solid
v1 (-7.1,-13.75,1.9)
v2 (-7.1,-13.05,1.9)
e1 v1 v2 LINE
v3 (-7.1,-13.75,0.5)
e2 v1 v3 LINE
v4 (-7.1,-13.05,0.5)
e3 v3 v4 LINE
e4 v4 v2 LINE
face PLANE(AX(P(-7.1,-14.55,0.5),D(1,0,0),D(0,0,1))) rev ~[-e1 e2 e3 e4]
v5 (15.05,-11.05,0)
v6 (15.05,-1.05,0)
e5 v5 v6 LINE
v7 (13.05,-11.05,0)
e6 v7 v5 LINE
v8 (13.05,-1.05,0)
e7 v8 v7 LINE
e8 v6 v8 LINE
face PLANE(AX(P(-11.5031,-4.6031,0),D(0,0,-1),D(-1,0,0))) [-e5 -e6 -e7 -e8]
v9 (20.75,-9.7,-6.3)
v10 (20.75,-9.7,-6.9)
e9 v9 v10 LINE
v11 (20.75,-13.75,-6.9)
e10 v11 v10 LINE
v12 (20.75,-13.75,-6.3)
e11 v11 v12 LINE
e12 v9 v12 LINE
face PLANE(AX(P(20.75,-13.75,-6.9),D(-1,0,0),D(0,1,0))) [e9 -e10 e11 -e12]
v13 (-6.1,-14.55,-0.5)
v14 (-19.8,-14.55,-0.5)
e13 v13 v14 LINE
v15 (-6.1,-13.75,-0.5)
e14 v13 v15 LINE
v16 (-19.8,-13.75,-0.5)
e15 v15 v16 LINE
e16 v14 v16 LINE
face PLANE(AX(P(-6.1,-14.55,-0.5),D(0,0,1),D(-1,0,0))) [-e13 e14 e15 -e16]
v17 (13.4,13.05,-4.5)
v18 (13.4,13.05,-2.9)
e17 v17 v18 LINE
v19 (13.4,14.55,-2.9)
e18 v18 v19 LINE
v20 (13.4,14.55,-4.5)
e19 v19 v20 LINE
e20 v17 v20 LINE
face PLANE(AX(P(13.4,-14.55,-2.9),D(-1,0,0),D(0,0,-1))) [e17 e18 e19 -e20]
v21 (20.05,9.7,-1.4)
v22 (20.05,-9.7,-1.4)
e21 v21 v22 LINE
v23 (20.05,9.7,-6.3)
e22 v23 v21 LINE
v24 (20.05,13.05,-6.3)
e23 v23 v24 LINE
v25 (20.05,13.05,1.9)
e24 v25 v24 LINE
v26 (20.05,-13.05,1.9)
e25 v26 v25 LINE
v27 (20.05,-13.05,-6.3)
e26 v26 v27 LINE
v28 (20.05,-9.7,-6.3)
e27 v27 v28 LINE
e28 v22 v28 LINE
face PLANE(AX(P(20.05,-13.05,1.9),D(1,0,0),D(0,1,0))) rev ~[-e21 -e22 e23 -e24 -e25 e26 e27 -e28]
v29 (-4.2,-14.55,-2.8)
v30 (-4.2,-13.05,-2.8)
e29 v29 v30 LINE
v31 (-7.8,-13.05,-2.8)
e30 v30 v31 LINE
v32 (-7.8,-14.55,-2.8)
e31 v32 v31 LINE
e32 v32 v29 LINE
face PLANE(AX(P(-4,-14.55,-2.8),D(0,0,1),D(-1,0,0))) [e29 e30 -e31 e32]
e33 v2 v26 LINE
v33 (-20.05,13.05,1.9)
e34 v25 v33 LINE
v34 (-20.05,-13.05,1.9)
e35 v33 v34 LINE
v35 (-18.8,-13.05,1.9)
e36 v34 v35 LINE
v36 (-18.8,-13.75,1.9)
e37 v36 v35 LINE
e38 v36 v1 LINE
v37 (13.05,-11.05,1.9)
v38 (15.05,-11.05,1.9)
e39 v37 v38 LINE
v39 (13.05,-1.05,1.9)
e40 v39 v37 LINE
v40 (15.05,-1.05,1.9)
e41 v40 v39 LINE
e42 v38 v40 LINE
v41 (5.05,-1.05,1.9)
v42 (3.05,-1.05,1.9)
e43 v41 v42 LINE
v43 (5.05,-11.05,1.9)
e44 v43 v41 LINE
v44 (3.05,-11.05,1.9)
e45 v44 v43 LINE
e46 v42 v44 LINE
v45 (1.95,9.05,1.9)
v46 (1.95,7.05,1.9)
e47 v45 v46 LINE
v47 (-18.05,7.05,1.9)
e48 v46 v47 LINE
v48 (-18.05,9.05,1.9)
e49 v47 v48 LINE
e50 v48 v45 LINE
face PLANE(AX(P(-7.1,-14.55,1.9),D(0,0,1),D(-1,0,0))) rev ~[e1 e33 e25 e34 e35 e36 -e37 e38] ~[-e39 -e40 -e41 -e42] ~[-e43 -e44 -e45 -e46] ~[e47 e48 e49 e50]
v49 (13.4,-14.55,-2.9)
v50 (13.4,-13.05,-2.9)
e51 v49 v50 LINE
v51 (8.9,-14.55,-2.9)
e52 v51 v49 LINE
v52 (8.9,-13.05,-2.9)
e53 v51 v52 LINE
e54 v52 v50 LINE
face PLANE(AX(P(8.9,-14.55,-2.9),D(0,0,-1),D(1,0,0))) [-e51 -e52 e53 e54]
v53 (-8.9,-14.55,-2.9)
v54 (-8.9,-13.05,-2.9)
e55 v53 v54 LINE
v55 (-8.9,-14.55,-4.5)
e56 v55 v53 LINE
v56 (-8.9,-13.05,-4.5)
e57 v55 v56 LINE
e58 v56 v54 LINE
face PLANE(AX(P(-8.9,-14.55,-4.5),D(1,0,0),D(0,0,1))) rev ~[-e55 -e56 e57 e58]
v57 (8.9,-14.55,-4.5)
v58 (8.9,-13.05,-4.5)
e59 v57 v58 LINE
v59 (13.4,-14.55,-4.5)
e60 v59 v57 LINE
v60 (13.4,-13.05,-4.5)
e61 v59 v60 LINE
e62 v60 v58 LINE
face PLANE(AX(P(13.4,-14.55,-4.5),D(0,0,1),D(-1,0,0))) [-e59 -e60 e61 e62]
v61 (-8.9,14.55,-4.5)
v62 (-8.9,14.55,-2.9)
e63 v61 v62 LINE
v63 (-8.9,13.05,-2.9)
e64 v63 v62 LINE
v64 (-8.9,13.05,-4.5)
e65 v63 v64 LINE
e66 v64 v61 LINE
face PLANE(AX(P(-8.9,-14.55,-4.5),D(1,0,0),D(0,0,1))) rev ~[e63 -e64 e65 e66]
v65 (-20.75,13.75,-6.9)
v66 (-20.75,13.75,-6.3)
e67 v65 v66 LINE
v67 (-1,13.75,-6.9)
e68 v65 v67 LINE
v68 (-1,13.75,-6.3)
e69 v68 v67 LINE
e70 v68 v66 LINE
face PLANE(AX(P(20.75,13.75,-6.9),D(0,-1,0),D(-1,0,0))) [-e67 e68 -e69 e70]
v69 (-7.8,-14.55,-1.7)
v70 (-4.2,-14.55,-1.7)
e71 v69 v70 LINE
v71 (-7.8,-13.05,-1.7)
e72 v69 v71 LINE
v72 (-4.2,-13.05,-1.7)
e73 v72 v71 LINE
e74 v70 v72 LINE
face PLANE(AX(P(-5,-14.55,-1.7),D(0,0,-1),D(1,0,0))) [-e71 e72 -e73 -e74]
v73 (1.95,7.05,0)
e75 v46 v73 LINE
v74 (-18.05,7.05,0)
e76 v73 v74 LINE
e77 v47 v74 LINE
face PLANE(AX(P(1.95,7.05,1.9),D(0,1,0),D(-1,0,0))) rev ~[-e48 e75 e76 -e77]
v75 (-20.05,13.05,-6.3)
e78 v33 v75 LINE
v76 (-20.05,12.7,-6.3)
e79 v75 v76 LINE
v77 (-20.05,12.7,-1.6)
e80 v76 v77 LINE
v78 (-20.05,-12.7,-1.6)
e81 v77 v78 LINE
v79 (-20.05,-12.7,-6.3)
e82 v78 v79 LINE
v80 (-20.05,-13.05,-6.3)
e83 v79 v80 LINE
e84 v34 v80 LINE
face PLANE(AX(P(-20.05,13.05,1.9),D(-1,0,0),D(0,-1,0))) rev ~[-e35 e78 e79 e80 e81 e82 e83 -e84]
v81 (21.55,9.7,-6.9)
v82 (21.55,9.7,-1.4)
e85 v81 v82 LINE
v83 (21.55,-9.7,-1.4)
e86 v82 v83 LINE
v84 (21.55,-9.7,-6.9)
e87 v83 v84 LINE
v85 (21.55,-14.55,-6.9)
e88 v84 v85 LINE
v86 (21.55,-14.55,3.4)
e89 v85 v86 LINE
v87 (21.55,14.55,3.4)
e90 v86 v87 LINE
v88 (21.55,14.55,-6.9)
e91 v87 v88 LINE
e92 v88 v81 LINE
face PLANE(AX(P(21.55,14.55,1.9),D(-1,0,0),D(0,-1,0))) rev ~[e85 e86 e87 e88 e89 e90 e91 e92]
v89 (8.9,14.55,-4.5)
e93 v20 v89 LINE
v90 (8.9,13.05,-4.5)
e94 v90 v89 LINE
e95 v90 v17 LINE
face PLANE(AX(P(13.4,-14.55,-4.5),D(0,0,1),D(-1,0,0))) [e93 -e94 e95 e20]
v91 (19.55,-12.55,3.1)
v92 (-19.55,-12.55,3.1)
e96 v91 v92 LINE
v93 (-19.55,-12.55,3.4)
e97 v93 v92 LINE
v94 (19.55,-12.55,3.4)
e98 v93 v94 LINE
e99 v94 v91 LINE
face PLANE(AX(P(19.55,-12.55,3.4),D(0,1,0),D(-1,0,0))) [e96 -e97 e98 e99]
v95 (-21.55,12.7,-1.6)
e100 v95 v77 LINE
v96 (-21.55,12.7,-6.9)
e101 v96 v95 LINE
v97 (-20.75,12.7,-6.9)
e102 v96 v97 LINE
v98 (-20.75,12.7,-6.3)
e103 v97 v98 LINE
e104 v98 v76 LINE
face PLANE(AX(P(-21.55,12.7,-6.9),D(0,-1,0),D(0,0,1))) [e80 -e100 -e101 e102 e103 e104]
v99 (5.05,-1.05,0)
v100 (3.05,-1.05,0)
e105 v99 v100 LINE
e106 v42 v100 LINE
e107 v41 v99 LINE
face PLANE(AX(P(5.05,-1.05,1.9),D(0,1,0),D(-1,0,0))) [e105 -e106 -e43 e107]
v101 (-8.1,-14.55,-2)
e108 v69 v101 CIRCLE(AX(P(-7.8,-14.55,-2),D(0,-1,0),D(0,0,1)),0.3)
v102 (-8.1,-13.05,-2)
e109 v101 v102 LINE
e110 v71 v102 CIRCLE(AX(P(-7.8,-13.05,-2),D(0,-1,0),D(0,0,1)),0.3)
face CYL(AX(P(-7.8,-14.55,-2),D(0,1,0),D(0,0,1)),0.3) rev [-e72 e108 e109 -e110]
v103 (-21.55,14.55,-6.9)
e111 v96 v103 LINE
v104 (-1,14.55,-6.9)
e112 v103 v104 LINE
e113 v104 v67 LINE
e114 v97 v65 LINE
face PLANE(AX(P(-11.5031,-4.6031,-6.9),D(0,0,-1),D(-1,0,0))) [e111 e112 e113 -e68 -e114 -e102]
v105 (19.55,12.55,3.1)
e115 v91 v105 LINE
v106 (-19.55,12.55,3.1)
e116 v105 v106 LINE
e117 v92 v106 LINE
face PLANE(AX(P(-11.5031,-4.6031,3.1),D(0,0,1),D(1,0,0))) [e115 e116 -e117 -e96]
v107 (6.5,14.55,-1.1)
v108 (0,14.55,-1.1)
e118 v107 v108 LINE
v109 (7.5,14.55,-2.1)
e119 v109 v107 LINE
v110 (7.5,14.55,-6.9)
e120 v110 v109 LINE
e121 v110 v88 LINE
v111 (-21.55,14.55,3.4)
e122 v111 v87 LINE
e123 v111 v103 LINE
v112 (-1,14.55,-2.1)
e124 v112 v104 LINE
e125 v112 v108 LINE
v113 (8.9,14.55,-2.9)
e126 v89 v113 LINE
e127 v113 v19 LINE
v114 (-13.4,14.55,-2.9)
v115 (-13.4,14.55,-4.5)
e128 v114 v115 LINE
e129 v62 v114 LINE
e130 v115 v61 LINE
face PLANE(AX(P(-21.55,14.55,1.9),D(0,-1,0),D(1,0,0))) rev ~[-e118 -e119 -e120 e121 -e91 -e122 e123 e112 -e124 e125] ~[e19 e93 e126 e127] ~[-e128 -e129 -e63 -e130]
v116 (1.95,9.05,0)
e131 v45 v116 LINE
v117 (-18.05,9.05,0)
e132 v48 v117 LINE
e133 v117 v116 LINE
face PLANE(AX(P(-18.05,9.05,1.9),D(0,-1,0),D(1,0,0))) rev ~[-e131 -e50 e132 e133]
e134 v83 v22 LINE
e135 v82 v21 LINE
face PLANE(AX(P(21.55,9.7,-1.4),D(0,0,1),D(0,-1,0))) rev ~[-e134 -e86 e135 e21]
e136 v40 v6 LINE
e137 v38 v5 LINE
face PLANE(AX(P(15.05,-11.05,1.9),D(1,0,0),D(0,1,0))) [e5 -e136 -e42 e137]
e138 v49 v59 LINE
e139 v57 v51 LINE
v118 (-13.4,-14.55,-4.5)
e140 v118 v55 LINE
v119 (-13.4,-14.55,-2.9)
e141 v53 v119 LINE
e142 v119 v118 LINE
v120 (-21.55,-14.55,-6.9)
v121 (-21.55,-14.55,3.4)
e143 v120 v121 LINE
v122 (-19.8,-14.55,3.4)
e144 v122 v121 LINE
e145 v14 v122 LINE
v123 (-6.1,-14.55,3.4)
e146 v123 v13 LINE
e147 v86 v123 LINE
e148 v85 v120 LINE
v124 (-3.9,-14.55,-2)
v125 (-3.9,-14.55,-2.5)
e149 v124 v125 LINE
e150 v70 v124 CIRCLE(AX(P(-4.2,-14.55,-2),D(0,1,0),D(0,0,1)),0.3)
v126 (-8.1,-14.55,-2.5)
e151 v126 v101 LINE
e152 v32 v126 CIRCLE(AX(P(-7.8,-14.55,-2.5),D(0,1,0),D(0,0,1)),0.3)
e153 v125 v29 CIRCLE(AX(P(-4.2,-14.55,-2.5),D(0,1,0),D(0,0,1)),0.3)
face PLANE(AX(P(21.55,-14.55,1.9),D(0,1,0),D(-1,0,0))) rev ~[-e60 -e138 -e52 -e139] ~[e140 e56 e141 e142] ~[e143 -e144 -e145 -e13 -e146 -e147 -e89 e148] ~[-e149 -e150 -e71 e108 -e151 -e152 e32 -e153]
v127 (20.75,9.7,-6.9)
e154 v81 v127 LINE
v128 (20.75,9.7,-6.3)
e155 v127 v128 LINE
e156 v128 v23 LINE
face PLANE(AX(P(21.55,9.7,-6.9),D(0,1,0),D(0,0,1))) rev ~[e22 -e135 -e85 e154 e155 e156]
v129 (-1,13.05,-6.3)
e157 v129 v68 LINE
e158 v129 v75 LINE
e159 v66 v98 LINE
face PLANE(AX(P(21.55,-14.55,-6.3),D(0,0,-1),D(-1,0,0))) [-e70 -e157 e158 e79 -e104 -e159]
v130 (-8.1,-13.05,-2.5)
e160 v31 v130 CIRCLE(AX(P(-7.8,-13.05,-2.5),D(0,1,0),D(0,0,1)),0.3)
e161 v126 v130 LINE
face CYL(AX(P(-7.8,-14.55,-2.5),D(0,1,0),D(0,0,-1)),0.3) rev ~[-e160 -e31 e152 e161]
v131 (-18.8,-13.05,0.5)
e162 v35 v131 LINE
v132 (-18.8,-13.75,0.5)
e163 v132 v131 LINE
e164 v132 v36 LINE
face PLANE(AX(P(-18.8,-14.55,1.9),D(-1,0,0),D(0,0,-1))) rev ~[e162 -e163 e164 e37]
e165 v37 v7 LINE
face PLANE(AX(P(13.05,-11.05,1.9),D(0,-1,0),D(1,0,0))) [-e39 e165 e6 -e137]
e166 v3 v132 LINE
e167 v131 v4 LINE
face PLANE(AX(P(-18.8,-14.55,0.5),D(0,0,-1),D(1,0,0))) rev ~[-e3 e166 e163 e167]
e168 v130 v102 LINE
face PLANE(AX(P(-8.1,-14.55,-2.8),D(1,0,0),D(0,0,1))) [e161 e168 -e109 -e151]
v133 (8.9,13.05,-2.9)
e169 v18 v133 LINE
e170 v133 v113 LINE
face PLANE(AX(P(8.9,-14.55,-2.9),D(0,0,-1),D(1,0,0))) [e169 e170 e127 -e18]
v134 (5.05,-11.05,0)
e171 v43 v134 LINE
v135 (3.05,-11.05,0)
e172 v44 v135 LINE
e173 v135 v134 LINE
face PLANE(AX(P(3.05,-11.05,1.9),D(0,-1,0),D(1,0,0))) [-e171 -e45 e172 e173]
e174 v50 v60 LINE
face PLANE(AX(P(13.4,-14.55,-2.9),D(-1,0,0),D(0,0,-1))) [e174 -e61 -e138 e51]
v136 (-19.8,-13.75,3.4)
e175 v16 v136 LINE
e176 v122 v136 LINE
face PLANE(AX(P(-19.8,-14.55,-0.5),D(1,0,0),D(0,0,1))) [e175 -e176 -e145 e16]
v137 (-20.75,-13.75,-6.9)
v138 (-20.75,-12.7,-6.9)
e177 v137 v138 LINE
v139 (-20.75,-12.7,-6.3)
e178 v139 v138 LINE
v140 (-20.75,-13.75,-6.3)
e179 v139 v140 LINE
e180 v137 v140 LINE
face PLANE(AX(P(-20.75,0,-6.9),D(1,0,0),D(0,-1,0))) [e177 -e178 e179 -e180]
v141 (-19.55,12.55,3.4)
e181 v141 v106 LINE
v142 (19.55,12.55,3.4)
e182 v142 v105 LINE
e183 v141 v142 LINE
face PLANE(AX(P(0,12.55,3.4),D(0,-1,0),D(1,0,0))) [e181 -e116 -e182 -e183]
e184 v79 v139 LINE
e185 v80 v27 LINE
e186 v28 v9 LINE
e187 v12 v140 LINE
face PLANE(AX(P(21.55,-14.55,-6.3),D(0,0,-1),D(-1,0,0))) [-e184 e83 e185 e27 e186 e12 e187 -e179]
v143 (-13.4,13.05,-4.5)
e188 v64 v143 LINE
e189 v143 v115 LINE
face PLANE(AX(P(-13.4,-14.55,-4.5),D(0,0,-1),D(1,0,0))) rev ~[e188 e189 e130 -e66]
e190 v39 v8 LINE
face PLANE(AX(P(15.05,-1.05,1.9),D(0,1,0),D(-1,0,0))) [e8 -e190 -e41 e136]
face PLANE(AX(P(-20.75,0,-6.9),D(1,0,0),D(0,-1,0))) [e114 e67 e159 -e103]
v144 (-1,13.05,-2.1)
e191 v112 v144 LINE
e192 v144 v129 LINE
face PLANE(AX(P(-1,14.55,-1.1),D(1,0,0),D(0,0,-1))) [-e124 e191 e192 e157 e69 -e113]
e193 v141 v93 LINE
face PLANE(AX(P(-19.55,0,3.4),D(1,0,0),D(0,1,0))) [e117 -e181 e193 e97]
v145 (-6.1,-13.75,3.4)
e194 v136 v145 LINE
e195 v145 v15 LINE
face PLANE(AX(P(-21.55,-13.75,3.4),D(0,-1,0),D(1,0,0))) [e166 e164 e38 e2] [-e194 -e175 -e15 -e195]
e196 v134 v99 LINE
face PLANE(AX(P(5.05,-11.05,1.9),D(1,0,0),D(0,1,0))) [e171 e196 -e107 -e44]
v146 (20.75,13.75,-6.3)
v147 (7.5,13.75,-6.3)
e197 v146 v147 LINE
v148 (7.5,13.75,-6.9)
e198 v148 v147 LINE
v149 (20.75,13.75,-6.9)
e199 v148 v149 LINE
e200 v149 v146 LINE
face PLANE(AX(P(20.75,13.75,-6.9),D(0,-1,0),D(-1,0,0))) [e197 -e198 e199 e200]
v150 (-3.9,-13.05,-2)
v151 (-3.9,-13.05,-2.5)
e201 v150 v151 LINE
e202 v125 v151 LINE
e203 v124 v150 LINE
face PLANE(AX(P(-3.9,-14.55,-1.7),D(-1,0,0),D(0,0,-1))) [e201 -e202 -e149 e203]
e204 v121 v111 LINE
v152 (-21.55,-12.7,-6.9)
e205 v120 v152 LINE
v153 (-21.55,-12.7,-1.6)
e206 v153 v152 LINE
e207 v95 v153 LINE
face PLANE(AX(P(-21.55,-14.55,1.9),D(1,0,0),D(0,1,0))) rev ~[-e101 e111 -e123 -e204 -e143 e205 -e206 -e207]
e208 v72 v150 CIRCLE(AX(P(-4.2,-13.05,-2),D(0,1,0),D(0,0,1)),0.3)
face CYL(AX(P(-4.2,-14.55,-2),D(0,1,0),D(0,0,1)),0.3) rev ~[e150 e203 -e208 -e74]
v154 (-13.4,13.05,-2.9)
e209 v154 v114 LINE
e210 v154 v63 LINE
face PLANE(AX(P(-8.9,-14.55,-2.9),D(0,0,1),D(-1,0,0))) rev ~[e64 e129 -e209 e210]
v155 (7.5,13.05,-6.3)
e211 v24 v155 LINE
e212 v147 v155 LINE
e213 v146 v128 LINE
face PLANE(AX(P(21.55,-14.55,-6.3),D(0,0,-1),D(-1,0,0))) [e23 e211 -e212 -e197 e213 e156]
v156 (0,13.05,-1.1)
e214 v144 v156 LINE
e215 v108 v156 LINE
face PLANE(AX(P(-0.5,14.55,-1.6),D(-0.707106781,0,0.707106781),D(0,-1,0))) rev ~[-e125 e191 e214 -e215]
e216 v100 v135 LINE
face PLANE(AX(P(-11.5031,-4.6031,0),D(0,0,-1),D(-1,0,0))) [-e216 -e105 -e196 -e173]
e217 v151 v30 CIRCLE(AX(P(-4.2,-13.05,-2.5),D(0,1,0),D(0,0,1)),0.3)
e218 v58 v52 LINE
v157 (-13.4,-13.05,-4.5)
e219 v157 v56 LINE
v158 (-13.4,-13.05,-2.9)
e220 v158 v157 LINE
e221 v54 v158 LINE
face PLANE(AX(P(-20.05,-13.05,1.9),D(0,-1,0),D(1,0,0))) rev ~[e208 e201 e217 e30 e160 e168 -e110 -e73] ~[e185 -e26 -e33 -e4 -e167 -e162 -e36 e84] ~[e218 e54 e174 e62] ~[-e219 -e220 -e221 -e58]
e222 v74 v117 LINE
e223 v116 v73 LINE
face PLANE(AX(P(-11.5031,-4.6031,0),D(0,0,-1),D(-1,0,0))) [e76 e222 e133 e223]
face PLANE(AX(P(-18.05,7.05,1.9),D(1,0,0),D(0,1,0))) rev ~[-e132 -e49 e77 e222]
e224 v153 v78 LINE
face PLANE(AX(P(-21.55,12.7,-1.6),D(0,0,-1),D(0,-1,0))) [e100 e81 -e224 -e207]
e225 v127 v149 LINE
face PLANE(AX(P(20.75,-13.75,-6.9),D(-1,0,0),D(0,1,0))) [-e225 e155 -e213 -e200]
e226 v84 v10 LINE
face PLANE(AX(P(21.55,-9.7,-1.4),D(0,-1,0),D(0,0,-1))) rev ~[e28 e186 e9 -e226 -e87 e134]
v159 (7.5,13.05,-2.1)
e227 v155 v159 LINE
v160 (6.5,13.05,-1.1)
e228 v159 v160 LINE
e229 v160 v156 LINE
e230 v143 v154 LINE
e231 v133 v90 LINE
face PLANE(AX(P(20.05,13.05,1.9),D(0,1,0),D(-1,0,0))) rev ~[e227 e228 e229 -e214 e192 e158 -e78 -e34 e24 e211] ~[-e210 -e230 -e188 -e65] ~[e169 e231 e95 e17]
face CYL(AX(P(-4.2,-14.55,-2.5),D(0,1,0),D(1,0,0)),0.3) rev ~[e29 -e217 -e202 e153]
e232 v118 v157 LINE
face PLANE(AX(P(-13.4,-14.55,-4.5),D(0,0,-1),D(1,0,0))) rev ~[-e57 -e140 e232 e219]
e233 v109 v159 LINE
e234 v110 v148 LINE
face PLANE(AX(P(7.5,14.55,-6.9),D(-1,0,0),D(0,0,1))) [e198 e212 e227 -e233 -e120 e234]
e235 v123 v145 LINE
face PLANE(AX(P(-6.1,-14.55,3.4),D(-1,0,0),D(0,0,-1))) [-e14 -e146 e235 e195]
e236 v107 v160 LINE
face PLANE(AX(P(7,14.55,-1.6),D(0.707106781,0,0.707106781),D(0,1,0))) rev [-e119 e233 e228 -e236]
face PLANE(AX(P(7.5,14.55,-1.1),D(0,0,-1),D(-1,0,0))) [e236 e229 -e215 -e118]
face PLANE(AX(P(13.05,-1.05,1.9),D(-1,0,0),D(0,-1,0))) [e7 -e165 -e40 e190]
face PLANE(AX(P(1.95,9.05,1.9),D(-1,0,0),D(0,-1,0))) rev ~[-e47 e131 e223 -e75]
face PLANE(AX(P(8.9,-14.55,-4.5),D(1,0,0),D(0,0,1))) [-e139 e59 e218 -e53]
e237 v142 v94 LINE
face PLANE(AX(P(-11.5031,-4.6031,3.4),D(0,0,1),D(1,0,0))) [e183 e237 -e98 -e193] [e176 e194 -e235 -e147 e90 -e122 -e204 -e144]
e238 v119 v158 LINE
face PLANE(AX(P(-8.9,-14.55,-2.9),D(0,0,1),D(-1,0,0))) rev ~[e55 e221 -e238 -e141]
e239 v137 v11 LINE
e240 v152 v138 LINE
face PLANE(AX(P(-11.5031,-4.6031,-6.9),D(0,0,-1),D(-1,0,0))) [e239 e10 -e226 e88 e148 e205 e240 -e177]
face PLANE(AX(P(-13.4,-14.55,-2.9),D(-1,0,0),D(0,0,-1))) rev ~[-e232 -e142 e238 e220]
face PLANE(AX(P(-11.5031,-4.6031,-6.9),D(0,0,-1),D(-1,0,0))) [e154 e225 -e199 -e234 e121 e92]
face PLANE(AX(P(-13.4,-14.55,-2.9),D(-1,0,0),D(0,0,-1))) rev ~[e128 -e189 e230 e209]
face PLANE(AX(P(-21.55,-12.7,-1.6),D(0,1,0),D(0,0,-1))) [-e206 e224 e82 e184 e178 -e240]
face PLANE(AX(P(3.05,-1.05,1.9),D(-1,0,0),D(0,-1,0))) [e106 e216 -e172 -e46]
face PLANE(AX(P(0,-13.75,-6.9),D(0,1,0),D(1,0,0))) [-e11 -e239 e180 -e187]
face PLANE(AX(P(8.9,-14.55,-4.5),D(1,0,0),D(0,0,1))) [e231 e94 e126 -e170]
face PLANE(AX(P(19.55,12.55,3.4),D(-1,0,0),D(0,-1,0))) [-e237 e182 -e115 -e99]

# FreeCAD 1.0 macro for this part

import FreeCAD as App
import Part
import Sketcher

V = App.Vector


def edges_at(feature, points):
    """Names of the edges that pass closest to the given points."""
    edges = feature.Shape.Edges
    near = lambda p: min(range(len(edges)), key=lambda i: edges[i].distToShape(Part.Vertex(*p))[0])
    return sorted({f"Edge{near(p) + 1}" for p in points})


def add_polygon(sketch, points):
    """Adds a closed chain of lines whose ends are joined by coincident constraints."""
    first, n = sketch.GeometryCount, len(points)
    for a, b in zip(points, points[1:] + points[:1]):
        sketch.addGeometry(Part.LineSegment(App.Vector(*a, 0), App.Vector(*b, 0)), False)
    for i in range(n):
        sketch.addConstraint(Sketcher.Constraint("Coincident", first + i, 2, first + (i + 1) % n, 1))

doc = App.newDocument("Part")
body = doc.addObject("PartDesign::Body", "Body")

sketch1 = doc.addObject("Sketcher::SketchObject", "Sketch")
body.addObject(sketch1)
sketch1.AttachmentSupport = (doc.XY_Plane, [""])
sketch1.MapMode = "FlatFace"
sketch1.AttachmentOffset = App.Placement(V(0, 0, 1.9), App.Rotation())
add_polygon(sketch1, [(-21.55, 14.55), (-21.55, -14.55), (21.55, -14.55), (21.55, 14.55)])
sketch1.addConstraint([
    Sketcher.Constraint("Vertical", 0),
    Sketcher.Constraint("Horizontal", 1),
    Sketcher.Constraint("Vertical", 2),
    Sketcher.Constraint("Horizontal", 3),
    Sketcher.Constraint("Symmetric", 0, 2, 2, 2, -1, 1),
    Sketcher.Constraint("DistanceX", 1, 1, 1, 2, 43.1),
    Sketcher.Constraint("DistanceY", 0, 2, 0, 1, 29.1),
])
pad1 = doc.addObject("PartDesign::Pad", "Pad")
body.addObject(pad1)
pad1.Profile = sketch1
pad1.Length = 1.5

sketch2 = doc.addObject("Sketcher::SketchObject", "Sketch001")
body.addObject(sketch2)
sketch2.AttachmentSupport = (doc.XY_Plane, [""])
sketch2.MapMode = "FlatFace"
sketch2.AttachmentOffset = App.Placement(V(0, 0, 1.9), App.Rotation())
add_polygon(sketch2, [(-21.55, -14.55), (-21.55, 14.55), (21.55, 14.55), (21.55, -14.55)])
add_polygon(sketch2, [(20.05, -13.05), (20.05, 13.05), (-20.05, 13.05), (-20.05, -13.05)])
sketch2.addConstraint([
    Sketcher.Constraint("Vertical", 0),
    Sketcher.Constraint("Horizontal", 1),
    Sketcher.Constraint("Vertical", 2),
    Sketcher.Constraint("Horizontal", 3),
    Sketcher.Constraint("Vertical", 4),
    Sketcher.Constraint("Horizontal", 5),
    Sketcher.Constraint("Vertical", 6),
    Sketcher.Constraint("Horizontal", 7),
    Sketcher.Constraint("Symmetric", 0, 2, 2, 2, -1, 1),
    Sketcher.Constraint("Symmetric", 4, 2, 6, 2, -1, 1),
    Sketcher.Constraint("DistanceX", 4, 2, 1, 2, 1.5),
    Sketcher.Constraint("DistanceY", 4, 2, 1, 2, 1.5),
    Sketcher.Constraint("DistanceX", 1, 1, 1, 2, 43.1),
    Sketcher.Constraint("DistanceY", 0, 1, 0, 2, 29.1),
])
pad2 = doc.addObject("PartDesign::Pad", "Pad001")
body.addObject(pad2)
pad2.Profile = sketch2
pad2.Length = 8.8
pad2.Reversed = True

sketch3 = doc.addObject("Sketcher::SketchObject", "Sketch002")
body.addObject(sketch3)
sketch3.AttachmentSupport = (doc.XY_Plane, [""])
sketch3.MapMode = "FlatFace"
sketch3.AttachmentOffset = App.Placement(V(0, 0, 1.9), App.Rotation())
add_polygon(sketch3, [(13.05, -1.05), (15.05, -1.05), (15.05, -11.05), (13.05, -11.05)])
add_polygon(sketch3, [(3.05, -1.05), (5.05, -1.05), (5.05, -11.05), (3.05, -11.05)])
add_polygon(sketch3, [(-18.05, 7.05), (-18.05, 9.05), (1.95, 9.05), (1.95, 7.05)])
sketch3.addConstraint([
    Sketcher.Constraint("Horizontal", 0),
    Sketcher.Constraint("Vertical", 1),
    Sketcher.Constraint("Horizontal", 2),
    Sketcher.Constraint("Vertical", 3),
    Sketcher.Constraint("Horizontal", 4),
    Sketcher.Constraint("Vertical", 5),
    Sketcher.Constraint("Horizontal", 6),
    Sketcher.Constraint("Vertical", 7),
    Sketcher.Constraint("Vertical", 8),
    Sketcher.Constraint("Horizontal", 9),
    Sketcher.Constraint("Vertical", 10),
    Sketcher.Constraint("Horizontal", 11),
    Sketcher.Constraint("Horizontal", 3, 2, 4, 2),
    Sketcher.Constraint("Horizontal", 2, 2, 5, 2),
    Sketcher.Constraint("Equal", 2, 4),
    Sketcher.Constraint("Equal", 6, 8),
    Sketcher.Constraint("DistanceX", 0, 1, 0, 2, 2.0),
    Sketcher.Constraint("DistanceX", 9, 1, 9, 2, 20.0),
    Sketcher.Constraint("DistanceY", 1, 2, 1, 1, 10.0),
    Sketcher.Constraint("DistanceX", 4, 2, 3, 2, 8.0),
    Sketcher.Constraint("DistanceX", 8, 2, 7, 2, 21.1),
    Sketcher.Constraint("DistanceY", 7, 2, 8, 2, 10.1),
    Sketcher.Constraint("DistanceX", -1, 1, 0, 2, 15.05),
    Sketcher.Constraint("DistanceY", 0, 2, -1, 1, 1.05),
])
pad3 = doc.addObject("PartDesign::Pad", "Pad002")
body.addObject(pad3)
pad3.Profile = sketch3
pad3.Length = 1.9
pad3.Reversed = True

sketch4 = doc.addObject("Sketcher::SketchObject", "Sketch003")
body.addObject(sketch4)
sketch4.AttachmentSupport = (doc.XZ_Plane, [""])
sketch4.MapMode = "FlatFace"
sketch4.AttachmentOffset = App.Placement(V(0, 0, 14.55), App.Rotation())
add_polygon(sketch4, [(-7.1, 0.5), (-7.1, 1.9), (-18.8, 1.9), (-18.8, 0.5)])
sketch4.addConstraint([
    Sketcher.Constraint("Vertical", 0),
    Sketcher.Constraint("Horizontal", 1),
    Sketcher.Constraint("Vertical", 2),
    Sketcher.Constraint("Horizontal", 3),
    Sketcher.Constraint("DistanceX", 1, 2, 1, 1, 11.7),
    Sketcher.Constraint("DistanceY", 0, 1, 0, 2, 1.4),
    Sketcher.Constraint("DistanceX", 0, 2, -1, 1, 7.1),
    Sketcher.Constraint("DistanceY", -1, 1, 0, 2, 1.9),
])
pocket1 = doc.addObject("PartDesign::Pocket", "Pocket")
body.addObject(pocket1)
pocket1.Profile = sketch4
pocket1.Length = 1.5

sketch5 = doc.addObject("Sketcher::SketchObject", "Sketch004")
body.addObject(sketch5)
sketch5.AttachmentSupport = (doc.XZ_Plane, [""])
sketch5.MapMode = "FlatFace"
sketch5.AttachmentOffset = App.Placement(V(0, 0, 14.55), App.Rotation())
add_polygon(sketch5, [(-6.1, 3.4), (-19.8, 3.4), (-19.8, -0.5), (-6.1, -0.5)])
sketch5.addConstraint([
    Sketcher.Constraint("Horizontal", 0),
    Sketcher.Constraint("Vertical", 1),
    Sketcher.Constraint("Horizontal", 2),
    Sketcher.Constraint("Vertical", 3),
    Sketcher.Constraint("DistanceX", 0, 2, 0, 1, 13.7),
    Sketcher.Constraint("DistanceY", 1, 2, 1, 1, 3.9),
    Sketcher.Constraint("DistanceX", 0, 2, -1, 1, 19.8),
    Sketcher.Constraint("DistanceY", -1, 1, 0, 2, 3.4),
])
pocket2 = doc.addObject("PartDesign::Pocket", "Pocket001")
body.addObject(pocket2)
pocket2.Profile = sketch5
pocket2.Length = 0.8

sketch6 = doc.addObject("Sketcher::SketchObject", "Sketch005")
body.addObject(sketch6)
sketch6.AttachmentSupport = (doc.XZ_Plane, [""])
sketch6.MapMode = "FlatFace"
sketch6.AttachmentOffset = App.Placement(V(0, 0, 14.55), App.Rotation())
add_polygon(sketch6, [(-8.1, -1.7), (-8.1, -2.8), (-3.9, -2.8), (-3.9, -1.7)])
sketch6.addConstraint([
    Sketcher.Constraint("Vertical", 0),
    Sketcher.Constraint("Horizontal", 1),
    Sketcher.Constraint("Vertical", 2),
    Sketcher.Constraint("Horizontal", 3),
    Sketcher.Constraint("DistanceX", 1, 1, 1, 2, 4.2),
    Sketcher.Constraint("DistanceY", 0, 2, 0, 1, 1.1),
    Sketcher.Constraint("DistanceX", 0, 2, -1, 1, 8.1),
    Sketcher.Constraint("DistanceY", 0, 2, -1, 1, 2.8),
])
pocket3 = doc.addObject("PartDesign::Pocket", "Pocket002")
body.addObject(pocket3)
pocket3.Profile = sketch6
pocket3.Length = 1.5
doc.recompute()

fillet = doc.addObject("PartDesign::Fillet", "Fillet")
body.addObject(fillet)
fillet.Base = (pocket3, edges_at(pocket3, [
    (-8.1, -13.8, -2.8),
    (-3.9, -13.8, -2.8),
    (-8.1, -13.8, -1.7),
    (-3.9, -13.8, -1.7),
]))
fillet.Radius = 0.3

sketch7 = doc.addObject("Sketcher::SketchObject", "Sketch006")
body.addObject(sketch7)
sketch7.AttachmentSupport = (doc.XZ_Plane, [""])
sketch7.MapMode = "FlatFace"
sketch7.AttachmentOffset = App.Placement(V(0, 0, -14.55), App.Rotation())
add_polygon(sketch7, [(7.5, -1.1), (7.5, -6.9), (-1, -6.9), (-1, -1.1)])
sketch7.addConstraint([
    Sketcher.Constraint("Vertical", 0),
    Sketcher.Constraint("Horizontal", 1),
    Sketcher.Constraint("Vertical", 2),
    Sketcher.Constraint("Horizontal", 3),
    Sketcher.Constraint("DistanceX", 1, 2, 1, 1, 8.5),
    Sketcher.Constraint("DistanceY", 0, 2, 0, 1, 5.8),
    Sketcher.Constraint("DistanceX", 1, 2, -1, 1, 1.0),
    Sketcher.Constraint("DistanceY", 0, 2, -1, 1, 6.9),
])
pocket4 = doc.addObject("PartDesign::Pocket", "Pocket003")
body.addObject(pocket4)
pocket4.Profile = sketch7
pocket4.Length = 1.5
pocket4.Reversed = True
doc.recompute()

chamfer = doc.addObject("PartDesign::Chamfer", "Chamfer")
body.addObject(chamfer)
chamfer.Base = (pocket4, edges_at(pocket4, [(7.5, 13.8, -1.1), (-1, 13.8, -1.1)]))
chamfer.Size = 1

sketch8 = doc.addObject("Sketcher::SketchObject", "Sketch007")
body.addObject(sketch8)
sketch8.AttachmentSupport = (doc.YZ_Plane, [""])
sketch8.MapMode = "FlatFace"
sketch8.AttachmentOffset = App.Placement(V(0, 0, -21.55), App.Rotation())
add_polygon(sketch8, [(12.7, -1.6), (12.7, -6.9), (-12.7, -6.9), (-12.7, -1.6)])
sketch8.addConstraint([
    Sketcher.Constraint("Vertical", 0),
    Sketcher.Constraint("Horizontal", 1),
    Sketcher.Constraint("Vertical", 2),
    Sketcher.Constraint("Horizontal", 3),
    Sketcher.Constraint("DistanceX", 1, 2, 1, 1, 25.4),
    Sketcher.Constraint("DistanceY", 0, 2, 0, 1, 5.3),
    Sketcher.Constraint("DistanceX", -1, 1, 0, 2, 12.7),
    Sketcher.Constraint("DistanceY", 0, 2, -1, 1, 6.9),
])
pocket5 = doc.addObject("PartDesign::Pocket", "Pocket004")
body.addObject(pocket5)
pocket5.Profile = sketch8
pocket5.Length = 1.5
pocket5.Reversed = True

sketch9 = doc.addObject("Sketcher::SketchObject", "Sketch008")
body.addObject(sketch9)
sketch9.AttachmentSupport = (doc.YZ_Plane, [""])
sketch9.MapMode = "FlatFace"
sketch9.AttachmentOffset = App.Placement(V(0, 0, 21.55), App.Rotation())
add_polygon(sketch9, [(-9.7, -1.4), (-9.7, -6.9), (9.7, -6.9), (9.7, -1.4)])
sketch9.addConstraint([
    Sketcher.Constraint("Vertical", 0),
    Sketcher.Constraint("Horizontal", 1),
    Sketcher.Constraint("Vertical", 2),
    Sketcher.Constraint("Horizontal", 3),
    Sketcher.Constraint("DistanceX", 1, 1, 1, 2, 19.4),
    Sketcher.Constraint("DistanceY", 0, 2, 0, 1, 5.5),
    Sketcher.Constraint("DistanceX", 0, 2, -1, 1, 9.7),
    Sketcher.Constraint("DistanceY", 0, 2, -1, 1, 6.9),
])
pocket6 = doc.addObject("PartDesign::Pocket", "Pocket005")
body.addObject(pocket6)
pocket6.Profile = sketch9
pocket6.Length = 1.5

sketch10 = doc.addObject("Sketcher::SketchObject", "Sketch009")
body.addObject(sketch10)
sketch10.AttachmentSupport = (doc.XY_Plane, [""])
sketch10.MapMode = "FlatFace"
sketch10.AttachmentOffset = App.Placement(V(0, 0, -6.9), App.Rotation())
add_polygon(sketch10, [(20.75, -13.75), (-20.75, -13.75), (-20.75, 13.75), (20.75, 13.75)])
sketch10.addConstraint([
    Sketcher.Constraint("Horizontal", 0),
    Sketcher.Constraint("Vertical", 1),
    Sketcher.Constraint("Horizontal", 2),
    Sketcher.Constraint("Vertical", 3),
    Sketcher.Constraint("Symmetric", 0, 2, 2, 2, -1, 1),
    Sketcher.Constraint("DistanceX", 0, 2, 0, 1, 41.5),
    Sketcher.Constraint("DistanceY", 1, 1, 1, 2, 27.5),
])
pocket7 = doc.addObject("PartDesign::Pocket", "Pocket006")
body.addObject(pocket7)
pocket7.Profile = sketch10
pocket7.Length = 0.6
pocket7.Reversed = True

sketch11 = doc.addObject("Sketcher::SketchObject", "Sketch010")
body.addObject(sketch11)
sketch11.AttachmentSupport = (doc.XZ_Plane, [""])
sketch11.MapMode = "FlatFace"
sketch11.AttachmentOffset = App.Placement(V(0, 0, 14.55), App.Rotation())
add_polygon(sketch11, [(8.9, -4.5), (13.4, -4.5), (13.4, -2.9), (8.9, -2.9)])
add_polygon(sketch11, [(-13.4, -2.9), (-13.4, -4.5), (-8.9, -4.5), (-8.9, -2.9)])
sketch11.addConstraint([
    Sketcher.Constraint("Horizontal", 0),
    Sketcher.Constraint("Vertical", 1),
    Sketcher.Constraint("Horizontal", 2),
    Sketcher.Constraint("Vertical", 3),
    Sketcher.Constraint("Vertical", 4),
    Sketcher.Constraint("Horizontal", 5),
    Sketcher.Constraint("Vertical", 6),
    Sketcher.Constraint("Horizontal", 7),
    Sketcher.Constraint("Symmetric", 0, 2, 4, 2, -2),
    Sketcher.Constraint("Symmetric", 2, 2, 6, 2, -2),
    Sketcher.Constraint("DistanceX", 0, 1, 0, 2, 4.5),
    Sketcher.Constraint("DistanceY", 1, 1, 1, 2, 1.6),
    Sketcher.Constraint("DistanceY", 0, 2, -1, 1, 4.5),
    Sketcher.Constraint("DistanceX", -1, 1, 0, 2, 13.4),
])
pocket8 = doc.addObject("PartDesign::Pocket", "Pocket007")
body.addObject(pocket8)
pocket8.Profile = sketch11
pocket8.Length = 29.1

sketch12 = doc.addObject("Sketcher::SketchObject", "Sketch011")
body.addObject(sketch12)
sketch12.AttachmentSupport = (doc.XY_Plane, [""])
sketch12.MapMode = "FlatFace"
sketch12.AttachmentOffset = App.Placement(V(0, 0, 3.4), App.Rotation())
add_polygon(sketch12, [(19.55, 12.55), (-19.55, 12.55), (-19.55, -12.55), (19.55, -12.55)])
sketch12.addConstraint([
    Sketcher.Constraint("Horizontal", 0),
    Sketcher.Constraint("Vertical", 1),
    Sketcher.Constraint("Horizontal", 2),
    Sketcher.Constraint("Vertical", 3),
    Sketcher.Constraint("Symmetric", 0, 2, 2, 2, -1, 1),
    Sketcher.Constraint("DistanceX", 0, 2, 0, 1, 39.1),
    Sketcher.Constraint("DistanceY", 1, 2, 1, 1, 25.1),
])
pocket9 = doc.addObject("PartDesign::Pocket", "Pocket008")
body.addObject(pocket9)
pocket9.Profile = sketch12
pocket9.Length = 0.3

doc.recompute()
